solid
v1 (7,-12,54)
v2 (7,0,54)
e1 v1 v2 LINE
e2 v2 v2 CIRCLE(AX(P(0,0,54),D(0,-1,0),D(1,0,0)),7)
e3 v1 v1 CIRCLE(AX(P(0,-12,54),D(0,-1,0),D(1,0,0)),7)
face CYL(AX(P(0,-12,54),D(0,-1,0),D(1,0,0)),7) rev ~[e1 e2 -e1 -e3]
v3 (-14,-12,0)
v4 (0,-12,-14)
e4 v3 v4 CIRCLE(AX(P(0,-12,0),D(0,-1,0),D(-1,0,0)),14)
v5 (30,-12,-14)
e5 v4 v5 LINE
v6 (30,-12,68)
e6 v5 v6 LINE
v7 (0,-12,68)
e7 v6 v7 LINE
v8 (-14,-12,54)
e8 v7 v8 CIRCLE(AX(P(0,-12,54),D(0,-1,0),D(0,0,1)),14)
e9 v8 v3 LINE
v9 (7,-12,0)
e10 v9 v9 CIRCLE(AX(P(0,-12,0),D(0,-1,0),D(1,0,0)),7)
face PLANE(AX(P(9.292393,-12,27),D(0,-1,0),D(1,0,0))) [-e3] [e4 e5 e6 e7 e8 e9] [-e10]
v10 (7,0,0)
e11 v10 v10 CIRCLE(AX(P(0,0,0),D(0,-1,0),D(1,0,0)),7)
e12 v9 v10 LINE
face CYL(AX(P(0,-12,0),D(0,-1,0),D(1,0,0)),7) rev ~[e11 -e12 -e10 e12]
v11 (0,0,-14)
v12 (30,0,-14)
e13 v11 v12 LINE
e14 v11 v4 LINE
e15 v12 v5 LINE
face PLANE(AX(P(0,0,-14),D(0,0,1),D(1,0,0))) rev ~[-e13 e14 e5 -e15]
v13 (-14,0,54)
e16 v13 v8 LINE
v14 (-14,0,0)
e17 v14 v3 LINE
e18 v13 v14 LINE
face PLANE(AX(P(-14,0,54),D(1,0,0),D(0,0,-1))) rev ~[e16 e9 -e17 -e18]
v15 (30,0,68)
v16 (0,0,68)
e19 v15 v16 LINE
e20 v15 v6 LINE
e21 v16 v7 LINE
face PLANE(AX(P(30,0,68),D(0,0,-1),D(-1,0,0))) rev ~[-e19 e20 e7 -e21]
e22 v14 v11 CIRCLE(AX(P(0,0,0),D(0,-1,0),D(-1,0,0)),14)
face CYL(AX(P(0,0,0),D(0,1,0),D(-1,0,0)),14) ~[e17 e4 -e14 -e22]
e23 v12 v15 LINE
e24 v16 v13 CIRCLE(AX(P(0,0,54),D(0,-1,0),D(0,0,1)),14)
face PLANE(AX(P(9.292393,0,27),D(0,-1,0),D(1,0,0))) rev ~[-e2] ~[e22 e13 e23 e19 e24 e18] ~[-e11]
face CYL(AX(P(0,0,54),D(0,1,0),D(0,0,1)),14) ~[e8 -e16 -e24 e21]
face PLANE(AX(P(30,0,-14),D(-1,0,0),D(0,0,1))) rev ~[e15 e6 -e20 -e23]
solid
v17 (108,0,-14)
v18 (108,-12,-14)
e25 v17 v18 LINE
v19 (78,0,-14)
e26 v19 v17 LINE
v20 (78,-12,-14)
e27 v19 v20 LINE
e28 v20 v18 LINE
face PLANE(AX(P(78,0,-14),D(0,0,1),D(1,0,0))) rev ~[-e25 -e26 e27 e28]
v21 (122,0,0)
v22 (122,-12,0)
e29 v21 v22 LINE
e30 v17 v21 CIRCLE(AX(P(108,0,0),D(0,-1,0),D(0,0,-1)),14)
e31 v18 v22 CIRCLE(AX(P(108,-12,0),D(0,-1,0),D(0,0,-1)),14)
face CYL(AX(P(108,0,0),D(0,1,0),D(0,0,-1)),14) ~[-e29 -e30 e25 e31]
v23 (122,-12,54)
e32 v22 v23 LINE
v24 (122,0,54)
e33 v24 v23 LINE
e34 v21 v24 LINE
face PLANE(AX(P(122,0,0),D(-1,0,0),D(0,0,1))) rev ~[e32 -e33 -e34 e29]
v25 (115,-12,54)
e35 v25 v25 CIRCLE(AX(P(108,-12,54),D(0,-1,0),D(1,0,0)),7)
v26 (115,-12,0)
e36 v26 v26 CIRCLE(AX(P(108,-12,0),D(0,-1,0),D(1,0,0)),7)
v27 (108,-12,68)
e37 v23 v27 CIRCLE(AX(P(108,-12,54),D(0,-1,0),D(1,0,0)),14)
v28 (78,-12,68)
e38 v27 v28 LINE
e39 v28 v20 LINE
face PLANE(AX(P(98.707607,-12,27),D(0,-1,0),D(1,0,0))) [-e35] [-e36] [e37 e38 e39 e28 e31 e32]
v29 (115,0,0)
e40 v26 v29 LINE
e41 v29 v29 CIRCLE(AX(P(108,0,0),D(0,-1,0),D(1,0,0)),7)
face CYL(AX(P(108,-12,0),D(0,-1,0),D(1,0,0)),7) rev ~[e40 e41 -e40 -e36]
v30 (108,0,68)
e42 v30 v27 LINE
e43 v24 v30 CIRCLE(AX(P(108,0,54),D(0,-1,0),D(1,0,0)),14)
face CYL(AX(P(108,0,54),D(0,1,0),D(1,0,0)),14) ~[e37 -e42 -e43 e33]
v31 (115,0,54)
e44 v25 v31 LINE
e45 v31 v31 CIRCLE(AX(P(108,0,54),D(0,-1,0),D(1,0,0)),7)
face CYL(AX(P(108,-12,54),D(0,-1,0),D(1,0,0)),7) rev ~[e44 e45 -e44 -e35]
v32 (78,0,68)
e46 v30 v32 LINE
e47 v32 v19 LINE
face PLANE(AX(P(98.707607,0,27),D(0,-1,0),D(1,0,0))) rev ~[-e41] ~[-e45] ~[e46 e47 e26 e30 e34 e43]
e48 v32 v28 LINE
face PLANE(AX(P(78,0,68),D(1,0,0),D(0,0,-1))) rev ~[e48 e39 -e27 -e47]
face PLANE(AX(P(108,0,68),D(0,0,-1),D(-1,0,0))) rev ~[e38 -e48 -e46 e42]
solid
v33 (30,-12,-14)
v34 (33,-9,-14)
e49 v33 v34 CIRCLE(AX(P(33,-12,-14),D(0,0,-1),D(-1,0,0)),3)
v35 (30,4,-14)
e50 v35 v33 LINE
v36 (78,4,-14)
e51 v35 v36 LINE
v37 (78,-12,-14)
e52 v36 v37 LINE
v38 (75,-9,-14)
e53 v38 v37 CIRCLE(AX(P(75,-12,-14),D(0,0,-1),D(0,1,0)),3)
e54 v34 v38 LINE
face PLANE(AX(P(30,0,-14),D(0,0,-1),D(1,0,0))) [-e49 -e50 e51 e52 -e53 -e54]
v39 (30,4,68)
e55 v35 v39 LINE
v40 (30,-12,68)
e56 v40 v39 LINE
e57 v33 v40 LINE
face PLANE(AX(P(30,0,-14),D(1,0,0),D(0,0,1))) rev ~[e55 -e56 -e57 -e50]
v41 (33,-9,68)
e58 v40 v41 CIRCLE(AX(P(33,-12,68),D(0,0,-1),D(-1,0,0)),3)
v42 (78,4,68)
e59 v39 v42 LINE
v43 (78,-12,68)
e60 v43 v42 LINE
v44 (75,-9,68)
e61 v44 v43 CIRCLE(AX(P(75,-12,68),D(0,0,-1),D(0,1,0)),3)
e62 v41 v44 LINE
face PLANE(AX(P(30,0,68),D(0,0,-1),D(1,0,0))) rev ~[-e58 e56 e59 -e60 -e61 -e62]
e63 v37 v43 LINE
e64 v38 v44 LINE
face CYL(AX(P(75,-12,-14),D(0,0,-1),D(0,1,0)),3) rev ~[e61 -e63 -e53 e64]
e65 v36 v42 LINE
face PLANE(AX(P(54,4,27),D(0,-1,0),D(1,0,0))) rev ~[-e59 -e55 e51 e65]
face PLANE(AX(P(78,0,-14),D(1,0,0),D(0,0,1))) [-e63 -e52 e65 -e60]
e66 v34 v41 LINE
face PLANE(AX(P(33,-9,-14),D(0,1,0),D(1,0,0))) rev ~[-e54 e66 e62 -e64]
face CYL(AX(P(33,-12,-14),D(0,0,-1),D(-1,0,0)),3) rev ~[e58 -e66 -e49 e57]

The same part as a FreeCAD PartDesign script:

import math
import FreeCAD as App
import Part
import Sketcher
from FreeCAD import Vector

doc = App.newDocument("Part")
body = doc.addObject("PartDesign::Body", "Body")

# Sketch on XZ plane
sketch1 = doc.addObject("Sketcher::SketchObject", "Sketch")
body.addObject(sketch1)
sketch1.AttachmentSupport = (doc.XZ_Plane, [""])
sketch1.MapMode = "FlatFace"
sketch1.addGeometry([
    Part.LineSegment(Vector(-14, 54, 0), Vector(-14, 0, 0)),  # 0
    Part.ArcOfCircle(Part.Circle(Vector(0, 0, 0), Vector(0, 0, 1), 14), math.radians(180), math.radians(270)),  # 1
    Part.LineSegment(Vector(0, -14, 0), Vector(30, -14, 0)),  # 2
    Part.LineSegment(Vector(30, -14, 0), Vector(30, 68, 0)),  # 3
    Part.LineSegment(Vector(30, 68, 0), Vector(0, 68, 0)),  # 4
    Part.ArcOfCircle(Part.Circle(Vector(0, 54, 0), Vector(0, 0, 1), 14), math.radians(90), math.radians(180)),  # 5
], False)
sketch1.addConstraint([
    Sketcher.Constraint("Tangent", 0, 2, 1, 1),
    Sketcher.Constraint("Tangent", 1, 2, 2, 1),
    Sketcher.Constraint("Coincident", 2, 2, 3, 1),
    Sketcher.Constraint("Coincident", 3, 2, 4, 1),
    Sketcher.Constraint("Tangent", 4, 2, 5, 1),
    Sketcher.Constraint("Tangent", 5, 2, 0, 1),
    Sketcher.Constraint("Vertical", 0),
    Sketcher.Constraint("Horizontal", 2),
    Sketcher.Constraint("Vertical", 3),
    Sketcher.Constraint("Horizontal", 4),
    Sketcher.Constraint("Coincident", 1, 3, -1, 1),
    Sketcher.Constraint("Equal", 1, 5),
    Sketcher.Constraint("Radius", 1, 14.0),
    Sketcher.Constraint("DistanceX", 2, 1, 2, 2, 30.0),
    Sketcher.Constraint("DistanceY", 0, 2, 0, 1, 54.0),
])
pad1 = doc.addObject("PartDesign::Pad", "Pad")
body.addObject(pad1)
pad1.Profile = sketch1
pad1.Length = 12
body2 = doc.addObject("PartDesign::Body", "Body001")

# Sketch on XZ plane
sketch2 = doc.addObject("Sketcher::SketchObject", "Sketch001")
body2.addObject(sketch2)
sketch2.AttachmentSupport = (doc.getObject("XZ_Plane001"), [""])
sketch2.MapMode = "FlatFace"
sketch2.addGeometry([
    Part.LineSegment(Vector(78, 68, 0), Vector(78, -14, 0)),  # 0
    Part.LineSegment(Vector(78, -14, 0), Vector(108, -14, 0)),  # 1
    Part.ArcOfCircle(Part.Circle(Vector(108, 0, 0), Vector(0, 0, 1), 14), math.radians(-90), math.radians(0)),  # 2
    Part.LineSegment(Vector(122, 0, 0), Vector(122, 54, 0)),  # 3
    Part.ArcOfCircle(Part.Circle(Vector(108, 54, 0), Vector(0, 0, 1), 14), math.radians(0), math.radians(90)),  # 4
    Part.LineSegment(Vector(108, 68, 0), Vector(78, 68, 0)),  # 5
], False)
sketch2.addConstraint([
    Sketcher.Constraint("Coincident", 0, 2, 1, 1),
    Sketcher.Constraint("Tangent", 1, 2, 2, 1),
    Sketcher.Constraint("Tangent", 2, 2, 3, 1),
    Sketcher.Constraint("Tangent", 3, 2, 4, 1),
    Sketcher.Constraint("Tangent", 4, 2, 5, 1),
    Sketcher.Constraint("Coincident", 5, 2, 0, 1),
    Sketcher.Constraint("Vertical", 0),
    Sketcher.Constraint("Horizontal", 1),
    Sketcher.Constraint("Vertical", 3),
    Sketcher.Constraint("Horizontal", 5),
    Sketcher.Constraint("Equal", 2, 4),
    Sketcher.Constraint("PointOnObject", 2, 3, -1),
    Sketcher.Constraint("Radius", 2, 14.0),
    Sketcher.Constraint("DistanceX", 1, 1, 1, 2, 30.0),
    Sketcher.Constraint("DistanceY", 0, 2, 0, 1, 82.0),
    Sketcher.Constraint("DistanceX", -1, 1, 2, 3, 108.0),
])
pad2 = doc.addObject("PartDesign::Pad", "Pad001")
body2.addObject(pad2)
pad2.Profile = sketch2
pad2.Length = 12
body3 = doc.addObject("PartDesign::Body", "Body002")

# Sketch on XZ plane
sketch3 = doc.addObject("Sketcher::SketchObject", "Sketch002")
body3.addObject(sketch3)
sketch3.AttachmentSupport = (doc.getObject("XZ_Plane002"), [""])
sketch3.MapMode = "FlatFace"
sketch3.addGeometry([
    Part.LineSegment(Vector(30, 68, 0), Vector(30, -14, 0)),
    Part.LineSegment(Vector(30, -14, 0), Vector(78, -14, 0)),
    Part.LineSegment(Vector(78, -14, 0), Vector(78, 68, 0)),
    Part.LineSegment(Vector(78, 68, 0), Vector(30, 68, 0)),
], False)
sketch3.addConstraint([
    Sketcher.Constraint("Coincident", 0, 2, 1, 1),
    Sketcher.Constraint("Coincident", 1, 2, 2, 1),
    Sketcher.Constraint("Coincident", 2, 2, 3, 1),
    Sketcher.Constraint("Coincident", 3, 2, 0, 1),
    Sketcher.Constraint("Vertical", 0),
    Sketcher.Constraint("Horizontal", 1),
    Sketcher.Constraint("Vertical", 2),
    Sketcher.Constraint("Horizontal", 3),
    Sketcher.Constraint("DistanceX", 1, 1, 1, 2, 48.0),
    Sketcher.Constraint("DistanceY", 0, 2, 0, 1, 82.0),
    Sketcher.Constraint("DistanceX", -1, 1, 0, 2, 30.0),
    Sketcher.Constraint("DistanceY", 0, 2, -1, 1, 14.0),
])
pad3 = doc.addObject("PartDesign::Pad", "Pad002")
body3.addObject(pad3)
pad3.Profile = sketch3
pad3.Type = "TwoLengths"
pad3.Length = 12
pad3.Length2 = 4

# Sketch on XY plane
sketch4 = doc.addObject("Sketcher::SketchObject", "Sketch003")
body3.addObject(sketch4)
sketch4.AttachmentSupport = (doc.getObject("XY_Plane002"), [""])
sketch4.MapMode = "FlatFace"
sketch4.AttachmentOffset = App.Placement(Vector(0, 0, -14), App.Rotation())
sketch4.addGeometry([
    Part.LineSegment(Vector(78, -12, 0), Vector(30, -12, 0)),
    Part.ArcOfCircle(Part.Circle(Vector(33, -12, 0), Vector(0, 0, 1), 3), math.radians(90), math.radians(180)),
    Part.LineSegment(Vector(33, -9, 0), Vector(75, -9, 0)),
    Part.ArcOfCircle(Part.Circle(Vector(75, -12, 0), Vector(0, 0, 1), 3), math.radians(0), math.radians(90)),
], False)
sketch4.addConstraint([
    Sketcher.Constraint("Coincident", 0, 2, 1, 2),
    Sketcher.Constraint("Tangent", 1, 1, 2, 1),
    Sketcher.Constraint("Tangent", 2, 2, 3, 2),
    Sketcher.Constraint("Coincident", 3, 1, 0, 1),
    Sketcher.Constraint("Horizontal", 0),
    Sketcher.Constraint("Horizontal", 2),
    Sketcher.Constraint("Equal", 1, 3),
    Sketcher.Constraint("Horizontal", 3, 3, 0, 2),
    Sketcher.Constraint("Radius", 1, 3.0),
    Sketcher.Constraint("DistanceX", 0, 2, 0, 1, 48.0),
    Sketcher.Constraint("DistanceX", -1, 1, 1, 3, 33.0),
    Sketcher.Constraint("DistanceY", 1, 3, -1, 1, 12.0),
])
pocket1 = doc.addObject("PartDesign::Pocket", "Pocket")
body3.addObject(pocket1)
pocket1.Profile = sketch4
pocket1.Type = "ThroughAll"
pocket1.Reversed = True
body4 = doc.addObject("PartDesign::Body", "Body003")
body4.AllowCompound = True

# Sketch on XZ plane
sketch5 = doc.addObject("Sketcher::SketchObject", "Sketch004")
body4.addObject(sketch5)
sketch5.AttachmentSupport = (doc.getObject("XZ_Plane003"), [""])
sketch5.MapMode = "FlatFace"
sketch5.AttachmentOffset = App.Placement(Vector(0, 0, 12), App.Rotation())
sketch5.addGeometry([
    Part.Circle(Vector(0, 0, 0), Vector(0, 0, 1), 7),
    Part.Circle(Vector(0, 54, 0), Vector(0, 0, 1), 7),
    Part.Circle(Vector(108, 54, 0), Vector(0, 0, 1), 7),
    Part.Circle(Vector(108, 0, 0), Vector(0, 0, 1), 7),
], False)
sketch5.addConstraint([
    Sketcher.Constraint("Coincident", 0, 3, -1, 1),
    Sketcher.Constraint("Equal", 0, 1),
    Sketcher.Constraint("Equal", 1, 2),
    Sketcher.Constraint("Equal", 2, 3),
    Sketcher.Constraint("PointOnObject", 1, 3, -2),
    Sketcher.Constraint("PointOnObject", 3, 3, -1),
    Sketcher.Constraint("Horizontal", 1, 3, 2, 3),
    Sketcher.Constraint("Vertical", 2, 3, 3, 3),
    Sketcher.Constraint("Diameter", 0, 14.0),
    Sketcher.Constraint("DistanceY", -1, 1, 1, 3, 54.0),
    Sketcher.Constraint("DistanceX", -1, 1, 2, 3, 108.0),
])
pad4 = doc.addObject("PartDesign::Pad", "Pad003")
body4.addObject(pad4)
pad4.Profile = sketch5
pad4.Length = 16.001
pad4.Reversed = True
doc.recompute()

body5 = doc.addObject("PartDesign::Body", "Body004")
body5.BaseFeature = body4
boolean = doc.addObject("PartDesign::Boolean", "Boolean")
body.addObject(boolean)
boolean.Type = "Cut"
boolean.addObjects([body5])
doc.recompute()

# Sketch on XZ plane
sketch6 = doc.addObject("Sketcher::SketchObject", "Sketch005")
body.addObject(sketch6)
sketch6.AttachmentSupport = (doc.XZ_Plane, [""])
sketch6.MapMode = "FlatFace"
sketch6.AttachmentOffset = App.Placement(Vector(0, 0, 12), App.Rotation())
sketch6.addGeometry([
    Part.Circle(Vector(108, 54, 0), Vector(0, 0, 1), 7),
    Part.Circle(Vector(108, 0, 0), Vector(0, 0, 1), 7),
], False)
sketch6.addConstraint([
    Sketcher.Constraint("Equal", 0, 1),
    Sketcher.Constraint("PointOnObject", 1, 3, -1),
    Sketcher.Constraint("Vertical", 0, 3, 1, 3),
    Sketcher.Constraint("Diameter", 0, 14.0),
    Sketcher.Constraint("DistanceX", -1, 1, 0, 3, 108.0),
    Sketcher.Constraint("DistanceY", -1, 1, 0, 3, 54.0),
])
pocket2 = doc.addObject("PartDesign::Pocket", "Pocket001")
body.addObject(pocket2)
pocket2.Profile = sketch6
pocket2.Length = 25
doc.recompute()

boolean2 = doc.addObject("PartDesign::Boolean", "Boolean001")
body2.addObject(boolean2)
boolean2.Type = "Cut"
boolean2.addObjects([body4])

doc.recompute()
